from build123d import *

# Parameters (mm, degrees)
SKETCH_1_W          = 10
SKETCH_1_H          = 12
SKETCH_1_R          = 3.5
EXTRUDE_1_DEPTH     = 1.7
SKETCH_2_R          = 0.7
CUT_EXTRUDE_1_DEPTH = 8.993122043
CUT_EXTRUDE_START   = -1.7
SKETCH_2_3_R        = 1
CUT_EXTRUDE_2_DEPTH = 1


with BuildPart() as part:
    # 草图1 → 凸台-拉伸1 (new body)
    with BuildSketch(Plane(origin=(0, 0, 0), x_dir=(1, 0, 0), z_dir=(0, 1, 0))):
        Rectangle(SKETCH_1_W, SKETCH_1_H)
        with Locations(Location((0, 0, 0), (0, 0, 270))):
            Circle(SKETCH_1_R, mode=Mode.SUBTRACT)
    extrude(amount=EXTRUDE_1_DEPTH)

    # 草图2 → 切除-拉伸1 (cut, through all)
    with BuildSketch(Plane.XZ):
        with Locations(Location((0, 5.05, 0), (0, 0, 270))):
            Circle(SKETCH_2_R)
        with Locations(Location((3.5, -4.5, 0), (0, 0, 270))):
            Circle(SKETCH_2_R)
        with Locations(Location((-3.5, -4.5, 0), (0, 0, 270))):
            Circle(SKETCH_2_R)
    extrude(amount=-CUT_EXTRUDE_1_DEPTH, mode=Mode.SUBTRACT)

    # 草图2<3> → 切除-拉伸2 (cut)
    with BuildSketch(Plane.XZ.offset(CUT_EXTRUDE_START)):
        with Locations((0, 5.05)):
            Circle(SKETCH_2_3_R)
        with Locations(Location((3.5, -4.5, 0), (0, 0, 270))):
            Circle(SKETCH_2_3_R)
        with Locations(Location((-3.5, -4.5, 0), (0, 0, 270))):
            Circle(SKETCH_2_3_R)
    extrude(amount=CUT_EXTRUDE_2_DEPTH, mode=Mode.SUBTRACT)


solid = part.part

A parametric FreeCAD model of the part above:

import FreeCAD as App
import Part
import Sketcher
Q = App.Units.Quantity

doc = App.newDocument("Part")
params = doc.addObject("Spreadsheet::Sheet", "Params")
for row, (alias, value) in enumerate([
    ("sketch1_diameter", "7 mm"),
    ("sketch1_width", "10 mm"),
    ("sketch1_height", "12 mm"),
    ("pad1_length", "1.7 mm"),
    ("sketch2_diameter", "1.4 mm"),
    ("sketch3_diameter", "2 mm"),
    ("pocket2_length", "1 mm"),
], start=1):
    params.set(f"A{row}", alias)
    params.set(f"B{row}", "=" + value)
    params.setAlias(f"B{row}", alias)

body = doc.addObject("PartDesign::Body", "Body")

sketch1 = body.newObject("Sketcher::SketchObject", "Sketch")
sketch1.AttachmentSupport = (doc.getObject("XZ_Plane"), [""])
sketch1.MapMode = "FlatFace"
sketch1.addGeometry([
    Part.LineSegment(App.Vector(-5, -6, 0), App.Vector(-5, 6, 0)),
    Part.LineSegment(App.Vector(-5, 6, 0), App.Vector(5, 6, 0)),
    Part.LineSegment(App.Vector(5, 6, 0), App.Vector(5, -6, 0)),
    Part.LineSegment(App.Vector(5, -6, 0), App.Vector(-5, -6, 0)),
    Part.Circle(App.Vector(0, 0, 0), App.Vector(0, 0, 1), 3.5),
], False)
sketch1.addConstraint([
    Sketcher.Constraint("Coincident", 0, 2, 1, 1),
    Sketcher.Constraint("Coincident", 1, 2, 2, 1),
    Sketcher.Constraint("Coincident", 2, 2, 3, 1),
    Sketcher.Constraint("Coincident", 3, 2, 0, 1),
    Sketcher.Constraint("Vertical", 0),
    Sketcher.Constraint("Horizontal", 1),
    Sketcher.Constraint("Vertical", 2),
    Sketcher.Constraint("Horizontal", 3),
    Sketcher.Constraint("Coincident", 4, 3, -1, 1),
    Sketcher.Constraint("Symmetric", 0, 2, 2, 2, -1, 1),
    Sketcher.Constraint("Diameter", 4, Q("7 mm")),
    Sketcher.Constraint("DistanceX", 1, 1, 1, 2, Q("10 mm")),
    Sketcher.Constraint("DistanceY", 0, 1, 0, 2, Q("12 mm")),
])
sketch1.setExpression("Constraints[10]", "Params.sketch1_diameter")
sketch1.setExpression("Constraints[11]", "Params.sketch1_width")
sketch1.setExpression("Constraints[12]", "Params.sketch1_height")
pad1 = body.newObject("PartDesign::Pad", "Pad")
pad1.Profile = sketch1
pad1.setExpression("Length", "Params.pad1_length")
pad1.Reversed = True

sketch2 = body.newObject("Sketcher::SketchObject", "Sketch001")
sketch2.AttachmentSupport = (doc.getObject("XZ_Plane"), [""])
sketch2.MapMode = "FlatFace"
sketch2.addGeometry([
    Part.Circle(App.Vector(0, 5, 0), App.Vector(0, 0, 1), 0.7),
    Part.Circle(App.Vector(3.5, -4.5, 0), App.Vector(0, 0, 1), 0.7),
    Part.Circle(App.Vector(-3.5, -4.5, 0), App.Vector(0, 0, 1), 0.7),
], False)
sketch2.addConstraint([
    Sketcher.Constraint("Equal", 0, 1),
    Sketcher.Constraint("Equal", 1, 2),
    Sketcher.Constraint("Symmetric", 1, 3, 2, 3, -2),
    Sketcher.Constraint("PointOnObject", 0, 3, -2),
    Sketcher.Constraint("Diameter", 0, Q("1.4 mm")),
    Sketcher.Constraint("DistanceX", 2, 3, 1, 3, Q("7 mm")),
    Sketcher.Constraint("DistanceY", 1, 3, -1, 1, Q("4.5 mm")),
    Sketcher.Constraint("DistanceY", -1, 1, 0, 3, Q("5.05 mm")),
])
sketch2.setExpression("Constraints[4]", "Params.sketch2_diameter")
pocket1 = body.newObject("PartDesign::Pocket", "Pocket")
pocket1.Profile = sketch2
pocket1.Type = "ThroughAll"

sketch3 = body.newObject("Sketcher::SketchObject", "Sketch002")
sketch3.AttachmentSupport = (doc.getObject("XZ_Plane"), [""])
sketch3.MapMode = "FlatFace"
sketch3.AttachmentOffset = App.Placement(App.Vector(0, 0, -1.7), App.Rotation())
sketch3.addGeometry([
    Part.Circle(App.Vector(0, 5, 0), App.Vector(0, 0, 1), 1),
    Part.Circle(App.Vector(3.5, -4.5, 0), App.Vector(0, 0, 1), 1),
    Part.Circle(App.Vector(-3.5, -4.5, 0), App.Vector(0, 0, 1), 1),
], False)
sketch3.addConstraint([
    Sketcher.Constraint("Equal", 0, 1),
    Sketcher.Constraint("Equal", 1, 2),
    Sketcher.Constraint("Symmetric", 1, 3, 2, 3, -2),
    Sketcher.Constraint("PointOnObject", 0, 3, -2),
    Sketcher.Constraint("Diameter", 0, Q("2 mm")),
    Sketcher.Constraint("DistanceX", 2, 3, 1, 3, Q("7 mm")),
    Sketcher.Constraint("DistanceY", 1, 3, -1, 1, Q("4.5 mm")),
    Sketcher.Constraint("DistanceY", -1, 1, 0, 3, Q("5.05 mm")),
])
sketch3.setExpression("Constraints[4]", "Params.sketch3_diameter")
pocket2 = body.newObject("PartDesign::Pocket", "Pocket001")
pocket2.Profile = sketch3
pocket2.setExpression("Length", "Params.pocket2_length")
pocket2.Reversed = True

doc.recompute()
